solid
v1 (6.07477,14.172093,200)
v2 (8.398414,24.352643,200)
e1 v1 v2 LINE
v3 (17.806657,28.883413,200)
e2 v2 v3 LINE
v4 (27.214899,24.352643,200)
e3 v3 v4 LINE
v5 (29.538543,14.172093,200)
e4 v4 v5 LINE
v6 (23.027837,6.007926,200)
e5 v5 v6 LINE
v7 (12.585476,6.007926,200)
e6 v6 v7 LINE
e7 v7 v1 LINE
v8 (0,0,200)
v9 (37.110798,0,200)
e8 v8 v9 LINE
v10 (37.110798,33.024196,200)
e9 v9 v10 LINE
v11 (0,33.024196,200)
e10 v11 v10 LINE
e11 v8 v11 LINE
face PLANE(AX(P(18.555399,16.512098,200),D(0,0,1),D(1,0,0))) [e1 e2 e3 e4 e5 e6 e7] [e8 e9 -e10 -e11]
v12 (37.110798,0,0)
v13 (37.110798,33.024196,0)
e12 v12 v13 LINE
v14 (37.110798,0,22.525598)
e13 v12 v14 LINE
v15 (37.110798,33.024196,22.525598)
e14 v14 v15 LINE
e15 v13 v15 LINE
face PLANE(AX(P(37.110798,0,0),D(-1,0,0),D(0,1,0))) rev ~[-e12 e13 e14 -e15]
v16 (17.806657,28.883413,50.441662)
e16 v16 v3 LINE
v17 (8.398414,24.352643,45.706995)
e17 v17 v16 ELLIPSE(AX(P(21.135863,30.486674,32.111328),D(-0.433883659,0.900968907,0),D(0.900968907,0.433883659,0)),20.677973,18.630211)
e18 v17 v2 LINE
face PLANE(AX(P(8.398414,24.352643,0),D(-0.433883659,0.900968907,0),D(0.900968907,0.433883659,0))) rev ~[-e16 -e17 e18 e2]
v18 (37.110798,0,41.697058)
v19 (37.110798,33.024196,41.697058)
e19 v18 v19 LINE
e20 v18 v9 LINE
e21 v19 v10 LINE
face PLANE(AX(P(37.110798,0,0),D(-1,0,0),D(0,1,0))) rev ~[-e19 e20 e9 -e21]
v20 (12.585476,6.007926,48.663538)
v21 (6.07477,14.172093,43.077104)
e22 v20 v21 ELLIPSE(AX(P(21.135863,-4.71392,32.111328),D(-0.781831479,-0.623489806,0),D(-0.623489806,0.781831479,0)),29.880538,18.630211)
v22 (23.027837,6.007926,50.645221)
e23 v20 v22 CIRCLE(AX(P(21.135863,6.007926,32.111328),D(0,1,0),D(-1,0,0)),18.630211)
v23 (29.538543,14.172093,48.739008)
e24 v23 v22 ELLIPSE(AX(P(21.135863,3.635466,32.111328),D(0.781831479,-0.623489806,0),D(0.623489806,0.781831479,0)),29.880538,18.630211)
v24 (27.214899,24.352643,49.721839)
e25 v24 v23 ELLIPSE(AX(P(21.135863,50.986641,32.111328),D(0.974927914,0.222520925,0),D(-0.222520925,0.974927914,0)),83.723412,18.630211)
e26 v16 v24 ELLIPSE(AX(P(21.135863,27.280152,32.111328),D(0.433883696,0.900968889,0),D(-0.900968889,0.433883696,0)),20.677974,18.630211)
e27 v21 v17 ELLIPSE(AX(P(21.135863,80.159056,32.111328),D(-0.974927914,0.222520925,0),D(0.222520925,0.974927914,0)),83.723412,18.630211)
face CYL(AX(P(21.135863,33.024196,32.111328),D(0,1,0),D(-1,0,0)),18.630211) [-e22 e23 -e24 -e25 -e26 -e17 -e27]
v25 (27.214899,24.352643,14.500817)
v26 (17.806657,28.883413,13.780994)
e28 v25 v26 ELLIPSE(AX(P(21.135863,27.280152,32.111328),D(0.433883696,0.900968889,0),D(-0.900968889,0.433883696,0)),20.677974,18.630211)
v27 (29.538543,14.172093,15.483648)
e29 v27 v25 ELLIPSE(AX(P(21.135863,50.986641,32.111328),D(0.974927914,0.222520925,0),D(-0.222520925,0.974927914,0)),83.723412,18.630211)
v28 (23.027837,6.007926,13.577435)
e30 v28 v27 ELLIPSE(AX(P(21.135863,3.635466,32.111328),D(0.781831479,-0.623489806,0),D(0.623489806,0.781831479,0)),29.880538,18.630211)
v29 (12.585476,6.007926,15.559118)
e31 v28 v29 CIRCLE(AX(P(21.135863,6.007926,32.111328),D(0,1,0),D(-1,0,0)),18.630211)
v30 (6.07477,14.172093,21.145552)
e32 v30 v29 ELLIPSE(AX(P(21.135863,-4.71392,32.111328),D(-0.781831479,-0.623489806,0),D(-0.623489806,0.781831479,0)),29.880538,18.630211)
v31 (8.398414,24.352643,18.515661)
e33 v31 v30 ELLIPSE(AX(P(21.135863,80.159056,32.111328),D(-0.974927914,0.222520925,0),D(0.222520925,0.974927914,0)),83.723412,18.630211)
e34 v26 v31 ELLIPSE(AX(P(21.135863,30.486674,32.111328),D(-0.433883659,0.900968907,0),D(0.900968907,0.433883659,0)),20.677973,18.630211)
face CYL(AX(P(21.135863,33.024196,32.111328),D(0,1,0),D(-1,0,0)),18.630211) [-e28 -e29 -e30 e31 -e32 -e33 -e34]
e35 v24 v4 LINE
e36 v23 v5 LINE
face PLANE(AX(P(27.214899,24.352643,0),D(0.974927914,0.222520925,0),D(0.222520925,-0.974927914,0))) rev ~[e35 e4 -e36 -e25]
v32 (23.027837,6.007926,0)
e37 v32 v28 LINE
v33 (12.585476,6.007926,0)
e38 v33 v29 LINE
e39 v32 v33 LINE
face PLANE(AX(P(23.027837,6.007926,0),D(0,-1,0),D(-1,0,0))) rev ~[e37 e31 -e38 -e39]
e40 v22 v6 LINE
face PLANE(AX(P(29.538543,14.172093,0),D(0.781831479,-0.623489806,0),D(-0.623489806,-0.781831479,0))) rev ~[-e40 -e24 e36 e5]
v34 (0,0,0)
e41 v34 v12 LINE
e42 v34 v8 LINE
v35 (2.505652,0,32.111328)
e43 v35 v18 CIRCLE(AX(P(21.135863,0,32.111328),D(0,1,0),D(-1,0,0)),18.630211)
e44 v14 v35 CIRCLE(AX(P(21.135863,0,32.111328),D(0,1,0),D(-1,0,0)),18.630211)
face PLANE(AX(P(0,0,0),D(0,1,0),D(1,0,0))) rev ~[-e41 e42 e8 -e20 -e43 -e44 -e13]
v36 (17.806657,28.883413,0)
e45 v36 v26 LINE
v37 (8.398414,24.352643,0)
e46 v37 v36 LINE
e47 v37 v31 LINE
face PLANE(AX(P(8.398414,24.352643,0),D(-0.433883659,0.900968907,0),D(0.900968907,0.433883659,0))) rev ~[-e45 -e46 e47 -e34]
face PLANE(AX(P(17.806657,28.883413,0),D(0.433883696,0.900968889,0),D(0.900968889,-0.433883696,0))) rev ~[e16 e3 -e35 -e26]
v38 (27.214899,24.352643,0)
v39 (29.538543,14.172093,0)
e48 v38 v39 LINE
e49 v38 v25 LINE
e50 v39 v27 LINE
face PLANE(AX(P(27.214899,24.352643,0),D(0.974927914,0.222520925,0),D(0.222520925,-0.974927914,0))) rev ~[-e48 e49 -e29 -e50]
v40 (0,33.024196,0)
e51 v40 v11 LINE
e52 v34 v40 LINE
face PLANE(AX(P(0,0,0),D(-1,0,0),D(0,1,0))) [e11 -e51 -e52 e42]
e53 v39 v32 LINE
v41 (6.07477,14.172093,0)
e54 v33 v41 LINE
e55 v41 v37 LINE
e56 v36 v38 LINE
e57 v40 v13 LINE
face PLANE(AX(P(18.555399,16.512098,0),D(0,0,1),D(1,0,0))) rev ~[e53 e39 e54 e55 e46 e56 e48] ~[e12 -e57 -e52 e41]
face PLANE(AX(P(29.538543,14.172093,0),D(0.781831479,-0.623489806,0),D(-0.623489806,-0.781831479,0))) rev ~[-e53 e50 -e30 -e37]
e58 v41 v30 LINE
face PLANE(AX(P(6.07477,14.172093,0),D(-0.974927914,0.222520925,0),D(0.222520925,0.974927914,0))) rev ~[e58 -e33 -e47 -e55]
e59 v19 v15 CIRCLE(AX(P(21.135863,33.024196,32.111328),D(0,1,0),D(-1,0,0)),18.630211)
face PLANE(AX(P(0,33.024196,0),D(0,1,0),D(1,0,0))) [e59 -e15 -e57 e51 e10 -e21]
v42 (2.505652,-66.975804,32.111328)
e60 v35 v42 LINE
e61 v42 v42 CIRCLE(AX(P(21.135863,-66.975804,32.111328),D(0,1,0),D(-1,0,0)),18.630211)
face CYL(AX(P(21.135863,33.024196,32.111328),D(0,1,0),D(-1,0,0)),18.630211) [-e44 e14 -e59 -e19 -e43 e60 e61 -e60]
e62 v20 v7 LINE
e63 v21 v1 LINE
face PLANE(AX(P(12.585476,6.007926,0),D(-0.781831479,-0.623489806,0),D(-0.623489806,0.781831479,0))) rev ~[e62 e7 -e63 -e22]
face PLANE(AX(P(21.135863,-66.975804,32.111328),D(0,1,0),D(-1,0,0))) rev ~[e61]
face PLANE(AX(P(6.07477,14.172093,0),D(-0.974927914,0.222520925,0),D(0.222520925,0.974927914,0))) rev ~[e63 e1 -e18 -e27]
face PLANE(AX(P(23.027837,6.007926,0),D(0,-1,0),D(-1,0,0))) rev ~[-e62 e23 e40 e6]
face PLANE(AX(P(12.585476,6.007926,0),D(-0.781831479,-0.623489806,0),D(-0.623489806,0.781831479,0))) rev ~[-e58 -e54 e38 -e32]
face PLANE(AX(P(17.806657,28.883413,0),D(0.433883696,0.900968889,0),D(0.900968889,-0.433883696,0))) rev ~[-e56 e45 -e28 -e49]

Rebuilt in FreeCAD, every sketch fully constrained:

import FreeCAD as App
import Part
import Sketcher
Q = App.Units.Quantity

doc = App.newDocument("Part")
params = doc.addObject("Spreadsheet::Sheet", "Params")
for row, (alias, value) in enumerate([
    ("pad1_length", "200 mm"),
    ("pad2_length", "100 mm"),
], start=1):
    params.set(f"A{row}", alias)
    params.set(f"B{row}", "=" + value)
    params.setAlias(f"B{row}", alias)

body = doc.addObject("PartDesign::Body", "Body")

# Sketch on XY plane
sketch1 = body.newObject("Sketcher::SketchObject", "Sketch")
sketch1.AttachmentSupport = (doc.getObject("XY_Plane"), [""])
sketch1.MapMode = "FlatFace"
sketch1.addGeometry([
    Part.LineSegment(App.Vector(0, 33, 0), App.Vector(0, 0, 0)),  # 0
    Part.LineSegment(App.Vector(0, 0, 0), App.Vector(37, 0, 0)),  # 1
    Part.LineSegment(App.Vector(37, 0, 0), App.Vector(37, 33, 0)),  # 2
    Part.LineSegment(App.Vector(37, 33, 0), App.Vector(0, 33, 0)),  # 3
    Part.LineSegment(App.Vector(27, 24, 0), App.Vector(30, 14, 0)),  # 4
    Part.LineSegment(App.Vector(30, 14, 0), App.Vector(23, 6, 0)),  # 5
    Part.LineSegment(App.Vector(23, 6, 0), App.Vector(13, 6, 0)),  # 6
    Part.LineSegment(App.Vector(13, 6, 0), App.Vector(6, 14, 0)),  # 7
    Part.LineSegment(App.Vector(6, 14, 0), App.Vector(8, 24, 0)),  # 8
    Part.LineSegment(App.Vector(8, 24, 0), App.Vector(18, 29, 0)),  # 9
    Part.LineSegment(App.Vector(18, 29, 0), App.Vector(27, 24, 0)),  # 10
], False)
sketch1.addConstraint([
    Sketcher.Constraint("Coincident", 0, 2, 1, 1),
    Sketcher.Constraint("Coincident", 1, 2, 2, 1),
    Sketcher.Constraint("Coincident", 2, 2, 3, 1),
    Sketcher.Constraint("Coincident", 3, 2, 0, 1),
    Sketcher.Constraint("Coincident", 4, 2, 5, 1),
    Sketcher.Constraint("Coincident", 5, 2, 6, 1),
    Sketcher.Constraint("Coincident", 6, 2, 7, 1),
    Sketcher.Constraint("Coincident", 7, 2, 8, 1),
    Sketcher.Constraint("Coincident", 8, 2, 9, 1),
    Sketcher.Constraint("Coincident", 9, 2, 10, 1),
    Sketcher.Constraint("Coincident", 10, 2, 4, 1),
    Sketcher.Constraint("Vertical", 0),
    Sketcher.Constraint("Horizontal", 1),
    Sketcher.Constraint("Vertical", 2),
    Sketcher.Constraint("Horizontal", 3),
    Sketcher.Constraint("Horizontal", 6),
    Sketcher.Constraint("Coincident", 0, 2, -1, 1),
    Sketcher.Constraint("Horizontal", 4, 2, 7, 2),
    Sketcher.Constraint("Horizontal", 8, 2, 10, 2),
    Sketcher.Constraint("Equal", 4, 5),
    Sketcher.Constraint("Equal", 5, 7),
    Sketcher.Constraint("Equal", 7, 8),
    Sketcher.Constraint("Equal", 8, 9),
    Sketcher.Constraint("Equal", 9, 10),
    Sketcher.Constraint("DistanceX", 1, 1, 1, 2, Q("37.110798 mm")),
    Sketcher.Constraint("DistanceX", 6, 2, 6, 1, Q("10.442361 mm")),
    Sketcher.Constraint("DistanceX", -1, 1, 10, 2, Q("27.214899 mm")),
    Sketcher.Constraint("Distance", 4, Q("10.442362 mm")),
    Sketcher.Constraint("DistanceY", 0, 2, 0, 1, Q("33.024196 mm")),
    Sketcher.Constraint("DistanceX", -1, 1, 7, 2, Q("6.07477 mm")),
    Sketcher.Constraint("DistanceX", 5, 2, 1, 2, Q("14.082961 mm")),
    Sketcher.Constraint("DistanceY", 5, 2, 2, 2, Q("27.01627 mm")),
])
pad1 = body.newObject("PartDesign::Pad", "Pad")
pad1.Profile = sketch1
pad1.setExpression("Length", "Params.pad1_length")

# Sketch on XZ plane
sketch2 = body.newObject("Sketcher::SketchObject", "Sketch001")
sketch2.AttachmentSupport = (doc.getObject("XZ_Plane"), [""])
sketch2.MapMode = "FlatFace"
sketch2.AttachmentOffset = App.Placement(App.Vector(0, 0, -33.024196), App.Rotation())
sketch2.addGeometry(Part.Circle(App.Vector(21, 32, 0), App.Vector(0, 0, 1), 19), False)
sketch2.addConstraint([
    Sketcher.Constraint("Diameter", 0, Q("37.260422 mm")),
    Sketcher.Constraint("DistanceX", -1, 1, 0, 3, Q("21.135863 mm")),
    Sketcher.Constraint("DistanceY", -1, 1, 0, 3, Q("32.111328 mm")),
])
pad2 = body.newObject("PartDesign::Pad", "Pad001")
pad2.Profile = sketch2
pad2.setExpression("Length", "Params.pad2_length")

doc.recompute()
